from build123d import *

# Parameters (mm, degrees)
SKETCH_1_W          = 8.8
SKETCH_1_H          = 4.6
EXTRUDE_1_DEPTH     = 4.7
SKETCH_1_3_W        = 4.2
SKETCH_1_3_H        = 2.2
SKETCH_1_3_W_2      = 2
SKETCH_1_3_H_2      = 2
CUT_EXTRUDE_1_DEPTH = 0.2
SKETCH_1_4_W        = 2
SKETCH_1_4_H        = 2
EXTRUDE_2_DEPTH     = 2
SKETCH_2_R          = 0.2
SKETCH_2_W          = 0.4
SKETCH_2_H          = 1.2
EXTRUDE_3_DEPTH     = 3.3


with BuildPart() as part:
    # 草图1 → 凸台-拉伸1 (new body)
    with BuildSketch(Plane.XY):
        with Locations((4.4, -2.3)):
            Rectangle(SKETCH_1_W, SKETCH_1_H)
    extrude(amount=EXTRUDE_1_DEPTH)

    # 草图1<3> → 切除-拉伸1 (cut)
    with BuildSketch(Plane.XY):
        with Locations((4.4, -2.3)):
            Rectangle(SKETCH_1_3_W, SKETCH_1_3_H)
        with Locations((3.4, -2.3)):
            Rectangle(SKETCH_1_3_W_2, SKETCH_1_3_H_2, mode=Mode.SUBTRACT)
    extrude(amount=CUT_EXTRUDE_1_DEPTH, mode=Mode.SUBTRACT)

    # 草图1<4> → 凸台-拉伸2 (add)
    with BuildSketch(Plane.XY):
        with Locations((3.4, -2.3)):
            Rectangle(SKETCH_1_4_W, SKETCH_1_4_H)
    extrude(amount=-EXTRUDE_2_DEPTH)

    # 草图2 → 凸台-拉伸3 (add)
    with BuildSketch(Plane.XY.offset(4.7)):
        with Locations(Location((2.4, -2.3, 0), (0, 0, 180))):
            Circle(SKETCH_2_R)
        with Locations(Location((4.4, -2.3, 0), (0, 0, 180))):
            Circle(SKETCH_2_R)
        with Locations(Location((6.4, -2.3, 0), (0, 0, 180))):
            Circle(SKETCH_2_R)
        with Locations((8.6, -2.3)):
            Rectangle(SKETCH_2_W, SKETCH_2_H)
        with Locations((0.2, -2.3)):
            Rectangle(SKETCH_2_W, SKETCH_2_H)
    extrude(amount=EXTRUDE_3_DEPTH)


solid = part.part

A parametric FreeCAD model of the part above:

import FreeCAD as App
import Part
import Sketcher

V = App.Vector


def add_polygon(sketch, points):
    """Adds a closed chain of lines whose ends are joined by coincident constraints."""
    first, n = sketch.GeometryCount, len(points)
    for a, b in zip(points, points[1:] + points[:1]):
        sketch.addGeometry(Part.LineSegment(App.Vector(*a, 0), App.Vector(*b, 0)), False)
    for i in range(n):
        sketch.addConstraint(Sketcher.Constraint("Coincident", first + i, 2, first + (i + 1) % n, 1))

doc = App.newDocument("Part")
body = doc.addObject("PartDesign::Body", "Body")

sketch1 = body.newObject("Sketcher::SketchObject", "Sketch")
sketch1.AttachmentSupport = (doc.getObject("XY_Plane"), [""])
sketch1.MapMode = "FlatFace"
add_polygon(sketch1, [(0, 0), (0, -4.6), (8.8, -4.6), (8.8, 0)])
sketch1.addConstraint(Sketcher.Constraint("Vertical", 0))
sketch1.addConstraint(Sketcher.Constraint("Horizontal", 1))
sketch1.addConstraint(Sketcher.Constraint("Vertical", 2))
sketch1.addConstraint(Sketcher.Constraint("Horizontal", 3))
sketch1.addConstraint(Sketcher.Constraint("Coincident", 3, 2, -1, 1))
sketch1.addConstraint(Sketcher.Constraint("DistanceX", 1, 1, 1, 2, 8.8))
sketch1.addConstraint(Sketcher.Constraint("DistanceY", 0, 2, 0, 1, 4.6))
pad1 = body.newObject("PartDesign::Pad", "Pad")
pad1.Profile = sketch1
pad1.Length = 4.7

sketch2 = body.newObject("Sketcher::SketchObject", "Sketch001")
sketch2.AttachmentSupport = (doc.getObject("XY_Plane"), [""])
sketch2.MapMode = "FlatFace"
add_polygon(sketch2, [(2.3, -1.2), (2.3, -3.4), (6.5, -3.4), (6.5, -1.2)])
add_polygon(sketch2, [(4.4, -3.3), (2.4, -3.3), (2.4, -1.3), (4.4, -1.3)])
sketch2.addConstraint(Sketcher.Constraint("Vertical", 0))
sketch2.addConstraint(Sketcher.Constraint("Horizontal", 1))
sketch2.addConstraint(Sketcher.Constraint("Vertical", 2))
sketch2.addConstraint(Sketcher.Constraint("Horizontal", 3))
sketch2.addConstraint(Sketcher.Constraint("Horizontal", 4))
sketch2.addConstraint(Sketcher.Constraint("Vertical", 5))
sketch2.addConstraint(Sketcher.Constraint("Horizontal", 6))
sketch2.addConstraint(Sketcher.Constraint("Vertical", 7))
sketch2.addConstraint(Sketcher.Constraint("Equal", 6, 5))
sketch2.addConstraint(Sketcher.Constraint("DistanceX", 4, 2, 4, 1, 2.0))
sketch2.addConstraint(Sketcher.Constraint("DistanceX", 1, 1, 1, 2, 4.2))
sketch2.addConstraint(Sketcher.Constraint("DistanceY", 0, 2, 0, 1, 2.2))
sketch2.addConstraint(Sketcher.Constraint("DistanceX", -1, 1, 0, 2, 2.3))
sketch2.addConstraint(Sketcher.Constraint("DistanceY", 0, 2, -1, 1, 3.4))
sketch2.addConstraint(Sketcher.Constraint("DistanceX", -1, 1, 4, 2, 2.4))
sketch2.addConstraint(Sketcher.Constraint("DistanceY", 4, 2, -1, 1, 3.3))
pocket1 = body.newObject("PartDesign::Pocket", "Pocket")
pocket1.Profile = sketch2
pocket1.Length = 0.2
pocket1.Reversed = True

sketch3 = body.newObject("Sketcher::SketchObject", "Sketch002")
sketch3.AttachmentSupport = (doc.getObject("XY_Plane"), [""])
sketch3.MapMode = "FlatFace"
add_polygon(sketch3, [(2.4, -1.3), (2.4, -3.3), (4.4, -3.3), (4.4, -1.3)])
sketch3.addConstraint(Sketcher.Constraint("Vertical", 0))
sketch3.addConstraint(Sketcher.Constraint("Horizontal", 1))
sketch3.addConstraint(Sketcher.Constraint("Vertical", 2))
sketch3.addConstraint(Sketcher.Constraint("Horizontal", 3))
sketch3.addConstraint(Sketcher.Constraint("Equal", 3, 0))
sketch3.addConstraint(Sketcher.Constraint("DistanceX", 1, 1, 1, 2, 2.0))
sketch3.addConstraint(Sketcher.Constraint("DistanceX", -1, 1, 0, 2, 2.4))
sketch3.addConstraint(Sketcher.Constraint("DistanceY", 0, 2, -1, 1, 3.3))
pad2 = body.newObject("PartDesign::Pad", "Pad001")
pad2.Profile = sketch3
pad2.Length = 2
pad2.Reversed = True

sketch4 = body.newObject("Sketcher::SketchObject", "Sketch003")
sketch4.AttachmentSupport = (doc.getObject("XY_Plane"), [""])
sketch4.MapMode = "FlatFace"
sketch4.AttachmentOffset = App.Placement(V(0, 0, 4.7), App.Rotation())
sketch4.addGeometry(Part.Circle(V(2.4, -2.3, 0), V(0, 0, 1), 0.2), False)
sketch4.addGeometry(Part.Circle(V(4.4, -2.3, 0), V(0, 0, 1), 0.2), False)
sketch4.addGeometry(Part.Circle(V(6.4, -2.3, 0), V(0, 0, 1), 0.2), False)
add_polygon(sketch4, [(8.4, -1.7), (8.4, -2.9), (8.8, -2.9), (8.8, -1.7)])
add_polygon(sketch4, [(0, -1.7), (0, -2.9), (0.4, -2.9), (0.4, -1.7)])
sketch4.addConstraint(Sketcher.Constraint("Vertical", 3))
sketch4.addConstraint(Sketcher.Constraint("Horizontal", 4))
sketch4.addConstraint(Sketcher.Constraint("Vertical", 5))
sketch4.addConstraint(Sketcher.Constraint("Horizontal", 6))
sketch4.addConstraint(Sketcher.Constraint("Vertical", 7))
sketch4.addConstraint(Sketcher.Constraint("Horizontal", 8))
sketch4.addConstraint(Sketcher.Constraint("Vertical", 9))
sketch4.addConstraint(Sketcher.Constraint("Horizontal", 10))
sketch4.addConstraint(Sketcher.Constraint("Equal", 0, 1))
sketch4.addConstraint(Sketcher.Constraint("Equal", 1, 2))
sketch4.addConstraint(Sketcher.Constraint("PointOnObject", 7, 2, -2))
sketch4.addConstraint(Sketcher.Constraint("Horizontal", 0, 3, 1, 3))
sketch4.addConstraint(Sketcher.Constraint("Horizontal", 1, 3, 2, 3))
sketch4.addConstraint(Sketcher.Constraint("Horizontal", 4, 2, 7, 2))
sketch4.addConstraint(Sketcher.Constraint("Horizontal", 6, 2, 9, 2))
sketch4.addConstraint(Sketcher.Constraint("Equal", 6, 8))
sketch4.addConstraint(Sketcher.Constraint("Diameter", 0, 0.4))
sketch4.addConstraint(Sketcher.Constraint("DistanceX", 4, 1, 4, 2, 0.4))
sketch4.addConstraint(Sketcher.Constraint("DistanceY", 3, 2, 3, 1, 1.2))
sketch4.addConstraint(Sketcher.Constraint("DistanceX", 0, 3, 1, 3, 2.0))
sketch4.addConstraint(Sketcher.Constraint("DistanceX", 1, 3, 2, 3, 2.0))
sketch4.addConstraint(Sketcher.Constraint("DistanceX", 2, 3, 3, 2, 2.0))
sketch4.addConstraint(Sketcher.Constraint("DistanceX", 8, 2, 0, 3, 2.0))
sketch4.addConstraint(Sketcher.Constraint("DistanceY", 0, 3, -1, 1, 2.3))
sketch4.addConstraint(Sketcher.Constraint("DistanceY", 3, 2, -1, 1, 2.9))
pad3 = body.newObject("PartDesign::Pad", "Pad002")
pad3.Profile = sketch4
pad3.Length = 3.3

doc.recompute()
